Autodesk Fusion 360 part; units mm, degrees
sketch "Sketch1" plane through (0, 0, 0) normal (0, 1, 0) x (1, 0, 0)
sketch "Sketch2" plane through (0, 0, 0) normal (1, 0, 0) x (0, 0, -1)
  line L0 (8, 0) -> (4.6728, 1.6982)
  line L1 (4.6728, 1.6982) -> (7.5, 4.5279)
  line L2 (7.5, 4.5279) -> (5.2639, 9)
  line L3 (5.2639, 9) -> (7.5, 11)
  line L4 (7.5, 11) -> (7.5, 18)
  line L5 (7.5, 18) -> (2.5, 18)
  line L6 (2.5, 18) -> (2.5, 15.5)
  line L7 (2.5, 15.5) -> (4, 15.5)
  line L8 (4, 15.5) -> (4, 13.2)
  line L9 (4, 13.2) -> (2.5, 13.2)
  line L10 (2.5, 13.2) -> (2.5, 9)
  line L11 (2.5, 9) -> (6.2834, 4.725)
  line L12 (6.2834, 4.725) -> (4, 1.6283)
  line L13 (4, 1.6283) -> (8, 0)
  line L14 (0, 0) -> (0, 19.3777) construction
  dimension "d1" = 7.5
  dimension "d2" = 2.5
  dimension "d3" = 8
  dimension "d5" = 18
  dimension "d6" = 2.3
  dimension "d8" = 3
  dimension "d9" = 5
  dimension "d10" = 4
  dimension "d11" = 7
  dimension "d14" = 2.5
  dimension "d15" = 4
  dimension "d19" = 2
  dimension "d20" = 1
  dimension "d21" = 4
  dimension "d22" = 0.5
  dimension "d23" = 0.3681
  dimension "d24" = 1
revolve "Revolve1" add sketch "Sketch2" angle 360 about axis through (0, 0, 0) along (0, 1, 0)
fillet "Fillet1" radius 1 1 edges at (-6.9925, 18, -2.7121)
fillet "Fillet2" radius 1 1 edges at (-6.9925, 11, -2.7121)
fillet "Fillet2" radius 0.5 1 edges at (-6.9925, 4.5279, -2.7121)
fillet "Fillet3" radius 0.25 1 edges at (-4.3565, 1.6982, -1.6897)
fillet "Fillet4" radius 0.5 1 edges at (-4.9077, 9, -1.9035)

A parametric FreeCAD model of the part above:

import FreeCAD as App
import Part
import Sketcher
Q = App.Units.Quantity


def edges_at(feature, points):
    """Names of the edges that pass closest to the given points."""
    edges = feature.Shape.Edges
    near = lambda p: min(range(len(edges)), key=lambda i: edges[i].distToShape(Part.Vertex(*p))[0])
    return sorted({f"Edge{near(p) + 1}" for p in points})


def add_polygon(sketch, points):
    """Adds a closed chain of lines whose ends are joined by coincident constraints."""
    first, n = sketch.GeometryCount, len(points)
    for a, b in zip(points, points[1:] + points[:1]):
        sketch.addGeometry(Part.LineSegment(App.Vector(*a, 0), App.Vector(*b, 0)), False)
    for i in range(n):
        sketch.addConstraint(Sketcher.Constraint("Coincident", first + i, 2, first + (i + 1) % n, 1))

doc = App.newDocument("Part")
body = doc.addObject("PartDesign::Body", "Body")

# Sketch on YZ plane
sketch1 = body.newObject("Sketcher::SketchObject", "Sketch")
sketch1.AttachmentSupport = (doc.getObject("YZ_Plane"), [""])
sketch1.MapMode = "FlatFace"
add_polygon(sketch1, [(1.6, -4), (0, -8), (1.7, -4.7), (4.5, -7.5), (9, -5.3), (11, -7.5), (18, -7.5), (18, -2.5), (15.5, -2.5), (15.5, -4), (13.2, -4), (13.2, -2.5), (9, -2.5), (4.7, -6.3)])  # lines 0-13
sketch1.addConstraint(Sketcher.Constraint("Horizontal", 5))
sketch1.addConstraint(Sketcher.Constraint("Vertical", 6))
sketch1.addConstraint(Sketcher.Constraint("Horizontal", 7))
sketch1.addConstraint(Sketcher.Constraint("Vertical", 8))
sketch1.addConstraint(Sketcher.Constraint("Horizontal", 9))
sketch1.addConstraint(Sketcher.Constraint("Vertical", 10))
sketch1.addConstraint(Sketcher.Constraint("Horizontal", 11))
sketch1.addConstraint(Sketcher.Constraint("PointOnObject", 0, 2, -2))
sketch1.addConstraint(Sketcher.Constraint("Horizontal", 2, 2, 4, 2))
sketch1.addConstraint(Sketcher.Constraint("Horizontal", 7, 2, 10, 2))
sketch1.addConstraint(Sketcher.Constraint("Horizontal", 9, 2, 13, 2))
sketch1.addConstraint(Sketcher.Constraint("Vertical", 3, 2, 11, 2))
sketch1.addConstraint(Sketcher.Constraint("DistanceX", 5, 1, 5, 2, Q("7 mm")))
sketch1.addConstraint(Sketcher.Constraint("DistanceY", 6, 1, 6, 2, Q("5 mm")))
sketch1.addConstraint(Sketcher.Constraint("Distance", 2, Q("4 mm")))
sketch1.addConstraint(Sketcher.Constraint("Distance", 3, Q("5 mm")))
sketch1.addConstraint(Sketcher.Constraint("Distance", 4, Q("3 mm")))
sketch1.addConstraint(Sketcher.Constraint("DistanceX", 7, 2, 7, 1, Q("2.5 mm")))
sketch1.addConstraint(Sketcher.Constraint("DistanceX", 9, 2, 9, 1, Q("2.3 mm")))
sketch1.addConstraint(Sketcher.Constraint("DistanceY", 0, 2, -1, 1, Q("8 mm")))
sketch1.addConstraint(Sketcher.Constraint("DistanceX", -1, 1, 5, 2, Q("18 mm")))
sketch1.addConstraint(Sketcher.Constraint("DistanceY", 8, 2, -1, 1, Q("4 mm")))
sketch1.addConstraint(Sketcher.Constraint("DistanceX", 3, 2, 4, 2, Q("2 mm")))
sketch1.addConstraint(Sketcher.Constraint("DistanceY", 2, 2, -1, 1, Q("7.5 mm")))
sketch1.addConstraint(Sketcher.Constraint("Angle", 0, Q("-112.15 deg")))
sketch1.addConstraint(Sketcher.Constraint("Angle", 1, Q("62.9603 deg")))
sketch1.addConstraint(Sketcher.Constraint("Angle", 12, Q("-138.491 deg")))
sketch1.addConstraint(Sketcher.Constraint("DistanceX", -1, 1, 12, 2, Q("4.725 mm")))
revolution = body.newObject("PartDesign::Revolution", "Revolution")
revolution.Profile = sketch1
revolution.ReferenceAxis = (sketch1, ["H_Axis"])
revolution.Angle = 360
doc.recompute()

fillet = body.newObject("PartDesign::Fillet", "Fillet")
fillet.Base = (revolution, edges_at(revolution, [(-6.992, 18, -2.712)]))
fillet.Radius = 1
doc.recompute()

fillet2 = body.newObject("PartDesign::Fillet", "Fillet001")
fillet2.Base = (fillet, edges_at(fillet, [(-6.992, 11, -2.712)]))
fillet2.Radius = 1
doc.recompute()

fillet3 = body.newObject("PartDesign::Fillet", "Fillet002")
fillet3.Base = (fillet2, edges_at(fillet2, [(-6.992, 4.528, -2.712)]))
fillet3.Radius = 0.5
doc.recompute()

fillet4 = body.newObject("PartDesign::Fillet", "Fillet003")
fillet4.Base = (fillet3, edges_at(fillet3, [(-4.356, 1.698, -1.69)]))
fillet4.Radius = 0.25
doc.recompute()

fillet5 = body.newObject("PartDesign::Fillet", "Fillet004")
fillet5.Base = (fillet4, edges_at(fillet4, [(-4.908, 9, -1.903)]))
fillet5.Radius = 0.5

doc.recompute()
